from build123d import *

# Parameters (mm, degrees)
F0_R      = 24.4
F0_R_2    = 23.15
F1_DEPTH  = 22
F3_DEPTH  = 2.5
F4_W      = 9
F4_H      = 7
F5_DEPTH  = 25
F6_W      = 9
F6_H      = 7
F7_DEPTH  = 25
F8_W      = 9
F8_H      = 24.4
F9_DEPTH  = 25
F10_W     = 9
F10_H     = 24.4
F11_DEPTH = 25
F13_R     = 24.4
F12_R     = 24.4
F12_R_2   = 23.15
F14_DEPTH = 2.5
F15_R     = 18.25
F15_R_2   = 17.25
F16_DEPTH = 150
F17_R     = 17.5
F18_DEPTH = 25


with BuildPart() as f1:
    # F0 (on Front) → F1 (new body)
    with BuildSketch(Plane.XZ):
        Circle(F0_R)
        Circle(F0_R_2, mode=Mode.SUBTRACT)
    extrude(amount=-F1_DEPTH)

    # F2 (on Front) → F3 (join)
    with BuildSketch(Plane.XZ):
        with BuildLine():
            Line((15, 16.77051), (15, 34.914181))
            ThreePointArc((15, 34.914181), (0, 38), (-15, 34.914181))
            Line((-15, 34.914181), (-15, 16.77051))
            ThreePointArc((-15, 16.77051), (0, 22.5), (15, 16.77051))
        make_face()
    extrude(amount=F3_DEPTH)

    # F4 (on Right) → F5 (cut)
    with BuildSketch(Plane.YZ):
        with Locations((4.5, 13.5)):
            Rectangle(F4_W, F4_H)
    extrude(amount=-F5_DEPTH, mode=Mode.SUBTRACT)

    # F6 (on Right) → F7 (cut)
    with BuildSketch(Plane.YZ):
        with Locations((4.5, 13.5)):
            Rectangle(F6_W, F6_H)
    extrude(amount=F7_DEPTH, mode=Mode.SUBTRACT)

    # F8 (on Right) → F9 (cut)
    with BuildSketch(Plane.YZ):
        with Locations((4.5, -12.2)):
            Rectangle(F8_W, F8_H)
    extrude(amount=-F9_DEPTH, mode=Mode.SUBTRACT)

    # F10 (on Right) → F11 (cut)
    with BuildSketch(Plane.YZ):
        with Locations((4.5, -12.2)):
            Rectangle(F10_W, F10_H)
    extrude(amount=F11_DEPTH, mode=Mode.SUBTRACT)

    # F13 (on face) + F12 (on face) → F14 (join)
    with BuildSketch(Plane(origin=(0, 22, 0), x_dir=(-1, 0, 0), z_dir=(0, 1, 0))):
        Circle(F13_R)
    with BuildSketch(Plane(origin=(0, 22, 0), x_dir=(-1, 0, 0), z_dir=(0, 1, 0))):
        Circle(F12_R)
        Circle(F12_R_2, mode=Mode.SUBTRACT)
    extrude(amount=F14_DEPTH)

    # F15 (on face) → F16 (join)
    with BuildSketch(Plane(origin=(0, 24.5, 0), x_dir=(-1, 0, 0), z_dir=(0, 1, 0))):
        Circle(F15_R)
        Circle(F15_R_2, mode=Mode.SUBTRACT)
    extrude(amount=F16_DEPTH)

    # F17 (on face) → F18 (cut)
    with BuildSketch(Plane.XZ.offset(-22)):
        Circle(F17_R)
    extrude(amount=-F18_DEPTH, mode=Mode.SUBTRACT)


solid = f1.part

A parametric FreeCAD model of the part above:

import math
import FreeCAD as App
import Part
import Sketcher


def add_polygon(sketch, points):
    """Adds a closed chain of lines whose ends are joined by coincident constraints."""
    first, n = sketch.GeometryCount, len(points)
    for a, b in zip(points, points[1:] + points[:1]):
        sketch.addGeometry(Part.LineSegment(App.Vector(*a, 0), App.Vector(*b, 0)), False)
    for i in range(n):
        sketch.addConstraint(Sketcher.Constraint("Coincident", first + i, 2, first + (i + 1) % n, 1))

doc = App.newDocument("Part")
body = doc.addObject("PartDesign::Body", "Body")

sketch1 = body.newObject("Sketcher::SketchObject", "Sketch")
sketch1.AttachmentSupport = (doc.getObject("XZ_Plane"), [""])
sketch1.MapMode = "FlatFace"
sketch1.addGeometry([
    Part.Circle(App.Vector(0, 0, 0), App.Vector(0, 0, 1), 24.4),
    Part.Circle(App.Vector(0, 0, 0), App.Vector(0, 0, 1), 23.15),
], False)
sketch1.addConstraint([
    Sketcher.Constraint("Coincident", 0, 3, -1, 1),
    Sketcher.Constraint("Coincident", 1, 3, -1, 1),
    Sketcher.Constraint("Diameter", 0, 48.8),
    Sketcher.Constraint("Diameter", 1, 46.3),
])
pad1 = body.newObject("PartDesign::Pad", "Pad")
pad1.Profile = sketch1
pad1.Length = 22
pad1.Reversed = True

sketch2 = body.newObject("Sketcher::SketchObject", "Sketch001")
sketch2.AttachmentSupport = (doc.getObject("XZ_Plane"), [""])
sketch2.MapMode = "FlatFace"
sketch2.addGeometry([
    Part.LineSegment(App.Vector(15, 16.77051, 0), App.Vector(15, 34.914181, 0)),
    Part.ArcOfCircle(Part.Circle(App.Vector(0, -0.000006, 0), App.Vector(0, 0, 1), 38.000006), math.radians(66.750441), math.radians(113.249559)),
    Part.LineSegment(App.Vector(-15, 34.914181, 0), App.Vector(-15, 16.77051, 0)),
    Part.ArcOfCircle(Part.Circle(App.Vector(0, 0, 0), App.Vector(0, 0, 1), 22.5), math.radians(48.189686), math.radians(131.810314)),
], False)
sketch2.addConstraint([
    Sketcher.Constraint("Coincident", 0, 2, 1, 1),
    Sketcher.Constraint("Coincident", 1, 2, 2, 1),
    Sketcher.Constraint("Coincident", 2, 2, 3, 2),
    Sketcher.Constraint("Coincident", 3, 1, 0, 1),
    Sketcher.Constraint("Vertical", 0),
    Sketcher.Constraint("Vertical", 2),
    Sketcher.Constraint("Coincident", 1, 3, -1, 1),
    Sketcher.Constraint("Coincident", 3, 3, -1, 1),
    Sketcher.Constraint("Horizontal", 0, 2, 1, 2),
    Sketcher.Constraint("Radius", 3, 22.5),
    Sketcher.Constraint("DistanceX", -1, 1, 0, 2, 15.0),
    Sketcher.Constraint("Radius", 1, 38.000006),
])
pad2 = body.newObject("PartDesign::Pad", "Pad001")
pad2.Profile = sketch2
pad2.Length = 2.5

sketch3 = body.newObject("Sketcher::SketchObject", "Sketch002")
sketch3.AttachmentSupport = (doc.getObject("YZ_Plane"), [""])
sketch3.MapMode = "FlatFace"
add_polygon(sketch3, [(0, 17), (0, 10), (9, 10), (9, 17)])
sketch3.addConstraint([
    Sketcher.Constraint("Vertical", 0),
    Sketcher.Constraint("Horizontal", 1),
    Sketcher.Constraint("Vertical", 2),
    Sketcher.Constraint("Horizontal", 3),
    Sketcher.Constraint("PointOnObject", 0, 2, -2),
    Sketcher.Constraint("DistanceX", 1, 1, 1, 2, 9.0),
    Sketcher.Constraint("DistanceY", 0, 2, 0, 1, 7.0),
    Sketcher.Constraint("DistanceY", -1, 1, 0, 2, 10.0),
])
pocket1 = body.newObject("PartDesign::Pocket", "Pocket")
pocket1.Profile = sketch3
pocket1.Length = 25

sketch4 = body.newObject("Sketcher::SketchObject", "Sketch003")
sketch4.AttachmentSupport = (doc.getObject("YZ_Plane"), [""])
sketch4.MapMode = "FlatFace"
add_polygon(sketch4, [(0, 17), (0, 10), (9, 10), (9, 17)])
sketch4.addConstraint([
    Sketcher.Constraint("Vertical", 0),
    Sketcher.Constraint("Horizontal", 1),
    Sketcher.Constraint("Vertical", 2),
    Sketcher.Constraint("Horizontal", 3),
    Sketcher.Constraint("PointOnObject", 0, 2, -2),
    Sketcher.Constraint("DistanceX", 1, 1, 1, 2, 9.0),
    Sketcher.Constraint("DistanceY", 0, 2, 0, 1, 7.0),
    Sketcher.Constraint("DistanceY", -1, 1, 0, 2, 10.0),
])
pocket2 = body.newObject("PartDesign::Pocket", "Pocket001")
pocket2.Profile = sketch4
pocket2.Length = 25
pocket2.Reversed = True

sketch5 = body.newObject("Sketcher::SketchObject", "Sketch004")
sketch5.AttachmentSupport = (doc.getObject("YZ_Plane"), [""])
sketch5.MapMode = "FlatFace"
add_polygon(sketch5, [(0, 0), (0, -24.4), (9, -24.4), (9, 0)])
sketch5.addConstraint([
    Sketcher.Constraint("Vertical", 0),
    Sketcher.Constraint("Horizontal", 1),
    Sketcher.Constraint("Vertical", 2),
    Sketcher.Constraint("Horizontal", 3),
    Sketcher.Constraint("Coincident", 3, 2, -1, 1),
    Sketcher.Constraint("DistanceX", 1, 1, 1, 2, 9.0),
    Sketcher.Constraint("DistanceY", 0, 2, 0, 1, 24.4),
])
pocket3 = body.newObject("PartDesign::Pocket", "Pocket002")
pocket3.Profile = sketch5
pocket3.Length = 25

sketch6 = body.newObject("Sketcher::SketchObject", "Sketch005")
sketch6.AttachmentSupport = (doc.getObject("YZ_Plane"), [""])
sketch6.MapMode = "FlatFace"
add_polygon(sketch6, [(0, 0), (0, -24.4), (9, -24.4), (9, 0)])
sketch6.addConstraint([
    Sketcher.Constraint("Vertical", 0),
    Sketcher.Constraint("Horizontal", 1),
    Sketcher.Constraint("Vertical", 2),
    Sketcher.Constraint("Horizontal", 3),
    Sketcher.Constraint("Coincident", 3, 2, -1, 1),
    Sketcher.Constraint("DistanceX", 1, 1, 1, 2, 9.0),
    Sketcher.Constraint("DistanceY", 0, 2, 0, 1, 24.4),
])
pocket4 = body.newObject("PartDesign::Pocket", "Pocket003")
pocket4.Profile = sketch6
pocket4.Length = 25
pocket4.Reversed = True

sketch7 = body.newObject("Sketcher::SketchObject", "Sketch006")
sketch7.AttachmentSupport = (doc.getObject("XZ_Plane"), [""])
sketch7.MapMode = "FlatFace"
sketch7.AttachmentOffset = App.Placement(App.Vector(0, 0, -22), App.Rotation())
sketch7.addGeometry(Part.Circle(App.Vector(0, 0, 0), App.Vector(0, 0, 1), 24.4), False)
sketch7.addConstraint([
    Sketcher.Constraint("Coincident", 0, 3, -1, 1),
    Sketcher.Constraint("Diameter", 0, 48.8),
])
pad3 = body.newObject("PartDesign::Pad", "Pad002")
pad3.Profile = sketch7
pad3.Length = 2.5
pad3.Reversed = True

sketch8 = body.newObject("Sketcher::SketchObject", "Sketch007")
sketch8.AttachmentSupport = (doc.getObject("XZ_Plane"), [""])
sketch8.MapMode = "FlatFace"
sketch8.AttachmentOffset = App.Placement(App.Vector(0, 0, -24.5), App.Rotation())
sketch8.addGeometry([
    Part.Circle(App.Vector(0, 0, 0), App.Vector(0, 0, 1), 18.25),
    Part.Circle(App.Vector(0, 0, 0), App.Vector(0, 0, 1), 17.25),
], False)
sketch8.addConstraint([
    Sketcher.Constraint("Coincident", 0, 3, -1, 1),
    Sketcher.Constraint("Coincident", 1, 3, -1, 1),
    Sketcher.Constraint("Diameter", 0, 36.5),
    Sketcher.Constraint("Diameter", 1, 34.5),
])
pad4 = body.newObject("PartDesign::Pad", "Pad003")
pad4.Profile = sketch8
pad4.Length = 150
pad4.Reversed = True

sketch9 = body.newObject("Sketcher::SketchObject", "Sketch008")
sketch9.AttachmentSupport = (doc.getObject("XZ_Plane"), [""])
sketch9.MapMode = "FlatFace"
sketch9.AttachmentOffset = App.Placement(App.Vector(0, 0, -22), App.Rotation())
sketch9.addGeometry(Part.Circle(App.Vector(0, 0, 0), App.Vector(0, 0, 1), 17.5), False)
sketch9.addConstraint([
    Sketcher.Constraint("Coincident", 0, 3, -1, 1),
    Sketcher.Constraint("Diameter", 0, 35.0),
])
pocket5 = body.newObject("PartDesign::Pocket", "Pocket004")
pocket5.Profile = sketch9
pocket5.Length = 25

doc.recompute()
